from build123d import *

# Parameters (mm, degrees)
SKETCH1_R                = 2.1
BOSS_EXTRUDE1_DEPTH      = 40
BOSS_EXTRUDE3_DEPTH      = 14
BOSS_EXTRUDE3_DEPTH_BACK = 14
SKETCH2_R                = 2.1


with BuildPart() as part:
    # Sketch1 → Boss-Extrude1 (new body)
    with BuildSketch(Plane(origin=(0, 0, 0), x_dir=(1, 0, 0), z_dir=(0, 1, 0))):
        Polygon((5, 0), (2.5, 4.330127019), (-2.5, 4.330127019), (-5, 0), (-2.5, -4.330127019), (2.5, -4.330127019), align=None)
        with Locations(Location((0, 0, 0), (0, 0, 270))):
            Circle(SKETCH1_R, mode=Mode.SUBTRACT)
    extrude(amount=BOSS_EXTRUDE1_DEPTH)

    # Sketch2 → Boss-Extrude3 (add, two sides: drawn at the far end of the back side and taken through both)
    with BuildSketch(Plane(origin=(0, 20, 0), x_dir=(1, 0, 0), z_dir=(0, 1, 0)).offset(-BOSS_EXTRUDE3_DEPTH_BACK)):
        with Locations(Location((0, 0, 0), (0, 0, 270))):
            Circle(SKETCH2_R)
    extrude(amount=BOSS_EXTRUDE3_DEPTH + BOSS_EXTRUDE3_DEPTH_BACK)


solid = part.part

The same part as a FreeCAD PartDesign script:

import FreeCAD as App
import Part
import Sketcher
from FreeCAD import Vector
Q = App.Units.Quantity


def add_polygon(sketch, points):
    """Adds a closed chain of lines whose ends are joined by coincident constraints."""
    first, n = sketch.GeometryCount, len(points)
    for a, b in zip(points, points[1:] + points[:1]):
        sketch.addGeometry(Part.LineSegment(App.Vector(*a, 0), App.Vector(*b, 0)), False)
    for i in range(n):
        sketch.addConstraint(Sketcher.Constraint("Coincident", first + i, 2, first + (i + 1) % n, 1))

doc = App.newDocument("Part")
body = doc.addObject("PartDesign::Body", "Body")

# Sketch on XZ plane
sketch1 = doc.addObject("Sketcher::SketchObject", "Sketch")
body.addObject(sketch1)
sketch1.AttachmentSupport = (doc.XZ_Plane, [""])
sketch1.MapMode = "FlatFace"
add_polygon(sketch1, [(5, 0), (2.5, -4.3), (-2.5, -4.3), (-5, 0), (-2.5, 4.3), (2.5, 4.3)])  # lines 0-5
sketch1.addGeometry(Part.Circle(Vector(0, 0, 0), Vector(0, 0, 1), 2.1), False)  # 6
sketch1.addConstraint(Sketcher.Constraint("Horizontal", 1))
sketch1.addConstraint(Sketcher.Constraint("Horizontal", 4))
sketch1.addConstraint(Sketcher.Constraint("Coincident", 6, 3, -1, 1))
sketch1.addConstraint(Sketcher.Constraint("Symmetric", 0, 2, 3, 2, -1, 1))
sketch1.addConstraint(Sketcher.Constraint("Symmetric", 2, 2, 5, 2, -1, 1))
sketch1.addConstraint(Sketcher.Constraint("PointOnObject", 2, 2, -1))
sketch1.addConstraint(Sketcher.Constraint("Parallel", 2, 5))
sketch1.addConstraint(Sketcher.Constraint("Vertical", 1, 2, 3, 2))
sketch1.addConstraint(Sketcher.Constraint("Diameter", 6, Q("4.2 mm")))
sketch1.addConstraint(Sketcher.Constraint("DistanceX", 1, 2, 1, 1, Q("5 mm")))
sketch1.addConstraint(Sketcher.Constraint("Angle", 0, Q("-120 deg")))
sketch1.addConstraint(Sketcher.Constraint("Distance", 0, Q("5 mm")))
pad1 = doc.addObject("PartDesign::Pad", "Pad")
body.addObject(pad1)
pad1.Profile = sketch1
pad1.Length = 40
pad1.Reversed = True

# Sketch on XZ plane
sketch2 = doc.addObject("Sketcher::SketchObject", "Sketch001")
body.addObject(sketch2)
sketch2.AttachmentSupport = (doc.XZ_Plane, [""])
sketch2.MapMode = "FlatFace"
sketch2.AttachmentOffset = App.Placement(Vector(0, 0, -20), App.Rotation())
sketch2.addGeometry(Part.Circle(Vector(0, 0, 0), Vector(0, 0, 1), 2.1), False)
sketch2.addConstraint(Sketcher.Constraint("Coincident", 0, 3, -1, 1))
sketch2.addConstraint(Sketcher.Constraint("Diameter", 0, Q("4.2 mm")))
pad2 = doc.addObject("PartDesign::Pad", "Pad001")
body.addObject(pad2)
pad2.Profile = sketch2
pad2.Type = "TwoLengths"
pad2.Length = 14
pad2.Length2 = 14
pad2.Reversed = True

doc.recompute()
